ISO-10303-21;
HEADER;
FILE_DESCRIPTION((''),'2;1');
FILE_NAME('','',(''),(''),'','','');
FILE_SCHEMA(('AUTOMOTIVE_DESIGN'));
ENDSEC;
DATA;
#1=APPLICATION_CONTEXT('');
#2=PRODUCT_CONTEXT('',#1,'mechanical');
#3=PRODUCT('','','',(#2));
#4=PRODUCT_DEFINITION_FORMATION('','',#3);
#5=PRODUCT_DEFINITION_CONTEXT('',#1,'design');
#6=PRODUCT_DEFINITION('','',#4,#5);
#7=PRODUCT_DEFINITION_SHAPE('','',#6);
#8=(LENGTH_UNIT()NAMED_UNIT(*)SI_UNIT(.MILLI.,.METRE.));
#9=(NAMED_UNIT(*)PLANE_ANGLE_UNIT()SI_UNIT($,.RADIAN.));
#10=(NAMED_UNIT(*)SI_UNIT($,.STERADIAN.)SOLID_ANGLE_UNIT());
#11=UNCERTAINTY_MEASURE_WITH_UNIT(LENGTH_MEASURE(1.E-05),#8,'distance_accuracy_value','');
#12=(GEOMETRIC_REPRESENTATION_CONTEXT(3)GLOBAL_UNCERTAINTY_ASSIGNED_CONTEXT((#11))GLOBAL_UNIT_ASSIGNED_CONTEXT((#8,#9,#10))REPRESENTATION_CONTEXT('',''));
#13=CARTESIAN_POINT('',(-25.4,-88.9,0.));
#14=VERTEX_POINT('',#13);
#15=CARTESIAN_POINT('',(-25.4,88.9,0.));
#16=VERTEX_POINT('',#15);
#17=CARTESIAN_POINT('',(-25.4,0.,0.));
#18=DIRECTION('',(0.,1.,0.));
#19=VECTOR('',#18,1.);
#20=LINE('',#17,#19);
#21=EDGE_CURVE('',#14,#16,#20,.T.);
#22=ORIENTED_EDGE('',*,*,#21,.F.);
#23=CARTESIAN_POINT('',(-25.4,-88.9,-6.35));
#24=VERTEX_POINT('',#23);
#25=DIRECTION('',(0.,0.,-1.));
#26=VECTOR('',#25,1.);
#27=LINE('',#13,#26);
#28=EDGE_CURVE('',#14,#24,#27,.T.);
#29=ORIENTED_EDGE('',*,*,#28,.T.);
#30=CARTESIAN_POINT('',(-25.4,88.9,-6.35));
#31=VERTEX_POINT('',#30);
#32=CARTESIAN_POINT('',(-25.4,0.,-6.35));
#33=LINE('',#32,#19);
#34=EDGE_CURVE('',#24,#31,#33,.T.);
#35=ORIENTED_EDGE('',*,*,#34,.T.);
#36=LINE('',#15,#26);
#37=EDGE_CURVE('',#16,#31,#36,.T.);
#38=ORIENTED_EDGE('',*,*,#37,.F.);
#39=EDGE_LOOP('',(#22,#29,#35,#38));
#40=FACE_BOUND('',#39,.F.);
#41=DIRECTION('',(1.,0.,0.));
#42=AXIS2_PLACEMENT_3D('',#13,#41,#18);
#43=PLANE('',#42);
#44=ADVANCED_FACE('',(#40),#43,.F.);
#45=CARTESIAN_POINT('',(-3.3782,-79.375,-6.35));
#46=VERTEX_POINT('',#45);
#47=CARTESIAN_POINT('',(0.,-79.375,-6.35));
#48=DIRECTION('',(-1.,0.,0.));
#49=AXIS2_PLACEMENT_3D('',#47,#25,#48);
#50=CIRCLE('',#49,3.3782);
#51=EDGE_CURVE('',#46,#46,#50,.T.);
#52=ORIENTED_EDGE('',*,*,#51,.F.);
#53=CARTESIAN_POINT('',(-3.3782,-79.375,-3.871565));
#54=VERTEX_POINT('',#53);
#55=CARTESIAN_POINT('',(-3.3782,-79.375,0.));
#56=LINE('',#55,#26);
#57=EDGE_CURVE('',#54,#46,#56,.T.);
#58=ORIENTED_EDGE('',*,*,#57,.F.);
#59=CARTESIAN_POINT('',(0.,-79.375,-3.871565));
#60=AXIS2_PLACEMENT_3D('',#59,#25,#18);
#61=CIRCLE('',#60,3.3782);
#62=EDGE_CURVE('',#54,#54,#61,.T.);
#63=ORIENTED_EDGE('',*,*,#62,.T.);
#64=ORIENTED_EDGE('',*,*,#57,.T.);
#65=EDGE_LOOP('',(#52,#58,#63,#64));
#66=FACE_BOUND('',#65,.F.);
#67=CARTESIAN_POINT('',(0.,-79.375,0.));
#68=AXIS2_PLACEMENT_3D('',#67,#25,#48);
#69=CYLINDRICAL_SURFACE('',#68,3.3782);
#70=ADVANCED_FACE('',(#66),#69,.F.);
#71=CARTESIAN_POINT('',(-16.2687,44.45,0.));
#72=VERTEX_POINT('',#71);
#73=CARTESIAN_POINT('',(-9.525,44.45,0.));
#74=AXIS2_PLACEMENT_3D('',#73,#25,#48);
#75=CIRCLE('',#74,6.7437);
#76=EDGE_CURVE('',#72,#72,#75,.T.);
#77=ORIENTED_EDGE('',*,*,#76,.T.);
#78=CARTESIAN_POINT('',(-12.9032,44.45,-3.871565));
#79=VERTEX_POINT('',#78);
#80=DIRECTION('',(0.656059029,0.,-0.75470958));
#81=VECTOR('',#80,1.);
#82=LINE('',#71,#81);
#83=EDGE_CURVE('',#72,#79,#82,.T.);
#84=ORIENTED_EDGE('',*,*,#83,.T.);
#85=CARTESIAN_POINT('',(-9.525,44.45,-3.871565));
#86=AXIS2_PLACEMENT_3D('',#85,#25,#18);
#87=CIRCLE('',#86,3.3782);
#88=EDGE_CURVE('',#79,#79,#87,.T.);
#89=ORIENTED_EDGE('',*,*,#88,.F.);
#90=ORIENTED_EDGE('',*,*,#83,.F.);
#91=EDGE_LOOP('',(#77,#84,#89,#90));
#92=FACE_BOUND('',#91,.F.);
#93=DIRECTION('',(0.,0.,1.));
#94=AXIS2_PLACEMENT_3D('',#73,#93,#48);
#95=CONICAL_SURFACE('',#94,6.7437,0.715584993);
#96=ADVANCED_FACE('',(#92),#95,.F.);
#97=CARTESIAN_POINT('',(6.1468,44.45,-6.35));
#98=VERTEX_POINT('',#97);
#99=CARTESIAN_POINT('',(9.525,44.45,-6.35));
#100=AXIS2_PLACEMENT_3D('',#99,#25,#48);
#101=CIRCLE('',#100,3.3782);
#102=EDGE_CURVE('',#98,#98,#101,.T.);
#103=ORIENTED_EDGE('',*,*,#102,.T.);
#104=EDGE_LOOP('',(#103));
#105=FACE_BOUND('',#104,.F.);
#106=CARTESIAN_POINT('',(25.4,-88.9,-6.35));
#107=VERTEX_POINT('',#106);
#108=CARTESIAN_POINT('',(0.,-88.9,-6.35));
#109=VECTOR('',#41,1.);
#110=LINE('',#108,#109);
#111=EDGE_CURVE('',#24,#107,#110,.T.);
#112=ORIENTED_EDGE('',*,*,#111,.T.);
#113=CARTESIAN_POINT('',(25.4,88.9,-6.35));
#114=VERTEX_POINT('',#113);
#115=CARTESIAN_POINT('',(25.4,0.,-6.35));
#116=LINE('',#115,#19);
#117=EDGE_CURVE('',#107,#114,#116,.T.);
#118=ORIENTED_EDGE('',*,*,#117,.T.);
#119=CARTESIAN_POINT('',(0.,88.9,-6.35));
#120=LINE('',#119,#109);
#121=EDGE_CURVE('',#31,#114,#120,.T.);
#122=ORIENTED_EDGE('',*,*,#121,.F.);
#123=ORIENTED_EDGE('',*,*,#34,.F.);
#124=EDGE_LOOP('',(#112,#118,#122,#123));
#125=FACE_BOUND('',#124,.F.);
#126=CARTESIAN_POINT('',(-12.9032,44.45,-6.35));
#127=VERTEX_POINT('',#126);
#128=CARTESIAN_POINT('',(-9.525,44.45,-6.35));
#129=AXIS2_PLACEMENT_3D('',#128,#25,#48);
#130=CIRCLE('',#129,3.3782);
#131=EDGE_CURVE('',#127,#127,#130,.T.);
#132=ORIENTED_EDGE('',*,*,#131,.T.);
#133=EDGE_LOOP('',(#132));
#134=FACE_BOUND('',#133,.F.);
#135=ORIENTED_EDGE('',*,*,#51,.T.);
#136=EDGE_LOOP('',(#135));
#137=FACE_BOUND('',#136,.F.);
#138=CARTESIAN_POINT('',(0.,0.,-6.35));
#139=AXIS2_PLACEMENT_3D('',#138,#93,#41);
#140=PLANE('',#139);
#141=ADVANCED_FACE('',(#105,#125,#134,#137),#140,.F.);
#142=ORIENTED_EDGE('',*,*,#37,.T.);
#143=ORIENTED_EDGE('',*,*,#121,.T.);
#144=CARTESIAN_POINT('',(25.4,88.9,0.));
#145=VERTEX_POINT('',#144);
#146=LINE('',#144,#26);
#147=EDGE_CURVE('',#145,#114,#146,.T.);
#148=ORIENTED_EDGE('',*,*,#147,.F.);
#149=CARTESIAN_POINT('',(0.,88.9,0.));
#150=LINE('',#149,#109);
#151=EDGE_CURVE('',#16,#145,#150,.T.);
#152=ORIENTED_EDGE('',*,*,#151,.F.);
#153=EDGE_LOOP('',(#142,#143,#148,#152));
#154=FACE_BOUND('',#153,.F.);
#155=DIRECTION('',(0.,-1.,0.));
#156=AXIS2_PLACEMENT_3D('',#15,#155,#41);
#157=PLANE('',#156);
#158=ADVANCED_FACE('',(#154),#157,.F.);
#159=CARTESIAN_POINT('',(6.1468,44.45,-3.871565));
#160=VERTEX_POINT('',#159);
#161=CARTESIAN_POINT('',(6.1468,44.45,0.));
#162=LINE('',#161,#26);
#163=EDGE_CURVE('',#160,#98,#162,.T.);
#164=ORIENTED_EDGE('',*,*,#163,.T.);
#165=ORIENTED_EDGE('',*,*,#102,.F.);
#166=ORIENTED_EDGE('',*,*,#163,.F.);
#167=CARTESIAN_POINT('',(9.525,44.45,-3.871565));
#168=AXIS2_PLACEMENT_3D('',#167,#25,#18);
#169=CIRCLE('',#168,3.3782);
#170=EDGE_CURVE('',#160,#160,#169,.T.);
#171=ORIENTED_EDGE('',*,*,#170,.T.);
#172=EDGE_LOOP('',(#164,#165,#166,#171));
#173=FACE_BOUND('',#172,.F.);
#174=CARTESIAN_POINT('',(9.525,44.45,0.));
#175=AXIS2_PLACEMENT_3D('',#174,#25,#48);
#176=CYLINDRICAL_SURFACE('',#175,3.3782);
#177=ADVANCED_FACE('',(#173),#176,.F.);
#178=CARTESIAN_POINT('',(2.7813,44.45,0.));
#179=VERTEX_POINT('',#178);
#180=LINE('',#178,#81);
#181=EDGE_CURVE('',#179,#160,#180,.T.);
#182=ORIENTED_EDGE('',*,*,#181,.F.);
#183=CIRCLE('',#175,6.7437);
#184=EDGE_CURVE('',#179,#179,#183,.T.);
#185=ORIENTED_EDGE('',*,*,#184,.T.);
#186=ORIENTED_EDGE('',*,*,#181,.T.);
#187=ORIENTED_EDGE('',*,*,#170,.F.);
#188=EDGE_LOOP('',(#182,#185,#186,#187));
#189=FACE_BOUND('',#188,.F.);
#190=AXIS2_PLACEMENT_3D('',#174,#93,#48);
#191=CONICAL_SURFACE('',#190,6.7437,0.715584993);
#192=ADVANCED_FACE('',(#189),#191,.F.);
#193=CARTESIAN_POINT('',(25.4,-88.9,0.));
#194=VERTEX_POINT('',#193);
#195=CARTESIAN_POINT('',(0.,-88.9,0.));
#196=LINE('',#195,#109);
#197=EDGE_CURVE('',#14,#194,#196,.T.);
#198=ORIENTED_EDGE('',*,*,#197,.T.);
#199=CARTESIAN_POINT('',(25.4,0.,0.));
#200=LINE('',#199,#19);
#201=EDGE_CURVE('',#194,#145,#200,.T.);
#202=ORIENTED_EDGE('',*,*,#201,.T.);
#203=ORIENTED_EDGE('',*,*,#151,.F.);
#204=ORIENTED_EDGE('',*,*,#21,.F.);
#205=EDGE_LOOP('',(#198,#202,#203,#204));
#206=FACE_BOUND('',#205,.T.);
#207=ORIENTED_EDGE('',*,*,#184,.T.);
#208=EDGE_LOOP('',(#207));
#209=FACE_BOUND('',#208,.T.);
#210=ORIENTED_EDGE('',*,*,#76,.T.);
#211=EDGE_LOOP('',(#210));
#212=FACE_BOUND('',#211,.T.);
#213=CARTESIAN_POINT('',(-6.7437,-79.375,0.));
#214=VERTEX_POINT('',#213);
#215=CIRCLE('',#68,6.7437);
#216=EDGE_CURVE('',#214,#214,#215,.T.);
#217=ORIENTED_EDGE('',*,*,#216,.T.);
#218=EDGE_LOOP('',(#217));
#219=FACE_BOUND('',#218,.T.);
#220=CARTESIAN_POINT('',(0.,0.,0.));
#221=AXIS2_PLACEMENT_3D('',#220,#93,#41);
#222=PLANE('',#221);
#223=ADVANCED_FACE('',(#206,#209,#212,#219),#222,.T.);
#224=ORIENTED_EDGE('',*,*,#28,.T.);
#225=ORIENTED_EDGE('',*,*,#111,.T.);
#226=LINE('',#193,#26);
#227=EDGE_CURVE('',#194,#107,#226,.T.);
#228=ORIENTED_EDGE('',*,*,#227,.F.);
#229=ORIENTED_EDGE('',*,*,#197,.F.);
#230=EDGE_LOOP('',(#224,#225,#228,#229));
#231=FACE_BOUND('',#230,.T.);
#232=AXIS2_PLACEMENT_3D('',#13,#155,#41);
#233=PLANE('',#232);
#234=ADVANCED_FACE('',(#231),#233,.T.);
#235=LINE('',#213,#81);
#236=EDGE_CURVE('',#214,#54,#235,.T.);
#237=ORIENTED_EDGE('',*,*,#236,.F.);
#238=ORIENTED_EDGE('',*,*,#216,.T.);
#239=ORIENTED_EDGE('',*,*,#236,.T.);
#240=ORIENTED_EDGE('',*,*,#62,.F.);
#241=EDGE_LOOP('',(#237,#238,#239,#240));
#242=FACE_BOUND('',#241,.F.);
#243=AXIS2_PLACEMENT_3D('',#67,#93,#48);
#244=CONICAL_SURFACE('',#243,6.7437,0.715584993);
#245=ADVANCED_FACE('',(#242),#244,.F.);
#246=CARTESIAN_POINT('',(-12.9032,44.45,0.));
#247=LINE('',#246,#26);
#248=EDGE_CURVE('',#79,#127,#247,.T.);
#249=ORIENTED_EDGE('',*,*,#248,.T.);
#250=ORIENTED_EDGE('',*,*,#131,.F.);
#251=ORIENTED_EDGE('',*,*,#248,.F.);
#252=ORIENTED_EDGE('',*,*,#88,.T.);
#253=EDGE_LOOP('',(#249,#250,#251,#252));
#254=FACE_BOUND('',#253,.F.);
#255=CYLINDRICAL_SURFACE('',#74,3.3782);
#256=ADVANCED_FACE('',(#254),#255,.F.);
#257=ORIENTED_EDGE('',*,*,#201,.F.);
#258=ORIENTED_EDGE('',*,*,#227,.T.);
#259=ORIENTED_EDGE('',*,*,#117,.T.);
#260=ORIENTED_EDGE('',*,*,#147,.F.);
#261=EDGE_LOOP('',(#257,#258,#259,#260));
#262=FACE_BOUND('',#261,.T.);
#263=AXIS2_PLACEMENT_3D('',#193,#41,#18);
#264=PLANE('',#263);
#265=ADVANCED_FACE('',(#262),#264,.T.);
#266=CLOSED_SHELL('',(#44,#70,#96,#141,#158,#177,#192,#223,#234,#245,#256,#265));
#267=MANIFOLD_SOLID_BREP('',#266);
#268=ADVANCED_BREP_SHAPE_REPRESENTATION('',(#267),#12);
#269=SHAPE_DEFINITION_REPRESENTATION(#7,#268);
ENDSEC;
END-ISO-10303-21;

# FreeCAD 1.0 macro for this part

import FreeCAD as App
import Part
import Sketcher
Q = App.Units.Quantity

doc = App.newDocument("Part")
params = doc.addObject("Spreadsheet::Sheet", "Params")
for row, (alias, value) in enumerate([
    ("sketch1_width", "2 in"),
    ("sketch1_height", "7 in"),
    ("pad1_length", "0.25 in"),
    ("sketch2_diameter", "0.266 in"),
    ("hole_diameter", "0.266 in"),
    ("hole_csink_diameter", "0.531 in"),
], start=1):
    params.set(f"A{row}", alias)
    params.set(f"B{row}", "=" + value)
    params.setAlias(f"B{row}", alias)

body = doc.addObject("PartDesign::Body", "Body")

sketch1 = body.newObject("Sketcher::SketchObject", "Sketch")
sketch1.AttachmentSupport = (doc.getObject("XY_Plane"), [""])
sketch1.MapMode = "FlatFace"
sketch1.addGeometry([
    Part.LineSegment(App.Vector(-25.4, 88.9, 0), App.Vector(-25.4, -88.9, 0)),
    Part.LineSegment(App.Vector(-25.4, -88.9, 0), App.Vector(25.4, -88.9, 0)),
    Part.LineSegment(App.Vector(25.4, -88.9, 0), App.Vector(25.4, 88.9, 0)),
    Part.LineSegment(App.Vector(25.4, 88.9, 0), App.Vector(-25.4, 88.9, 0)),
], False)
sketch1.addConstraint([
    Sketcher.Constraint("Coincident", 0, 2, 1, 1),
    Sketcher.Constraint("Coincident", 1, 2, 2, 1),
    Sketcher.Constraint("Coincident", 2, 2, 3, 1),
    Sketcher.Constraint("Coincident", 3, 2, 0, 1),
    Sketcher.Constraint("Vertical", 0),
    Sketcher.Constraint("Horizontal", 1),
    Sketcher.Constraint("Vertical", 2),
    Sketcher.Constraint("Horizontal", 3),
    Sketcher.Constraint("Symmetric", 0, 2, 2, 2, -1, 1),
    Sketcher.Constraint("DistanceX", 1, 1, 1, 2, Q("2 in")),
    Sketcher.Constraint("DistanceY", 0, 2, 0, 1, Q("7 in")),
])
sketch1.setExpression("Constraints[9]", "Params.sketch1_width")
sketch1.setExpression("Constraints[10]", "Params.sketch1_height")
pad1 = body.newObject("PartDesign::Pad", "Pad")
pad1.Profile = sketch1
pad1.setExpression("Length", "Params.pad1_length")
pad1.Reversed = True

sketch2 = body.newObject("Sketcher::SketchObject", "Sketch001")
sketch2.AttachmentSupport = (doc.getObject("XY_Plane"), [""])
sketch2.MapMode = "FlatFace"
sketch2.addGeometry([
    Part.Circle(App.Vector(-9.525, 44.45, 0), App.Vector(0, 0, 1), 3.3782),
    Part.Circle(App.Vector(9.525, 44.45, 0), App.Vector(0, 0, 1), 3.3782),
    Part.Circle(App.Vector(0, -79.375, 0), App.Vector(0, 0, 1), 3.3782),
], False)
sketch2.addConstraint([
    Sketcher.Constraint("Equal", 0, 1),
    Sketcher.Constraint("Equal", 1, 2),
    Sketcher.Constraint("Symmetric", 0, 3, 1, 3, -2),
    Sketcher.Constraint("PointOnObject", 2, 3, -2),
    Sketcher.Constraint("Diameter", 0, Q("0.266 in")),
    Sketcher.Constraint("DistanceY", -1, 1, 0, 3, Q("1.75 in")),
    Sketcher.Constraint("DistanceX", 0, 3, 1, 3, Q("0.75 in")),
    Sketcher.Constraint("DistanceY", 2, 3, -1, 1, Q("3.125 in")),
])
sketch2.setExpression("Constraints[4]", "Params.sketch2_diameter")
doc.recompute()
hole = body.newObject("PartDesign::Hole", "Hole")
hole.Profile = sketch2
hole.ThreadType = "None"
hole.setExpression("Diameter", "Params.hole_diameter")
hole.DepthType = "ThroughAll"
hole.HoleCutType = "Countersink"
hole.setExpression("HoleCutDiameter", "Params.hole_csink_diameter")
hole.HoleCutCountersinkAngle = 82

doc.recompute()
